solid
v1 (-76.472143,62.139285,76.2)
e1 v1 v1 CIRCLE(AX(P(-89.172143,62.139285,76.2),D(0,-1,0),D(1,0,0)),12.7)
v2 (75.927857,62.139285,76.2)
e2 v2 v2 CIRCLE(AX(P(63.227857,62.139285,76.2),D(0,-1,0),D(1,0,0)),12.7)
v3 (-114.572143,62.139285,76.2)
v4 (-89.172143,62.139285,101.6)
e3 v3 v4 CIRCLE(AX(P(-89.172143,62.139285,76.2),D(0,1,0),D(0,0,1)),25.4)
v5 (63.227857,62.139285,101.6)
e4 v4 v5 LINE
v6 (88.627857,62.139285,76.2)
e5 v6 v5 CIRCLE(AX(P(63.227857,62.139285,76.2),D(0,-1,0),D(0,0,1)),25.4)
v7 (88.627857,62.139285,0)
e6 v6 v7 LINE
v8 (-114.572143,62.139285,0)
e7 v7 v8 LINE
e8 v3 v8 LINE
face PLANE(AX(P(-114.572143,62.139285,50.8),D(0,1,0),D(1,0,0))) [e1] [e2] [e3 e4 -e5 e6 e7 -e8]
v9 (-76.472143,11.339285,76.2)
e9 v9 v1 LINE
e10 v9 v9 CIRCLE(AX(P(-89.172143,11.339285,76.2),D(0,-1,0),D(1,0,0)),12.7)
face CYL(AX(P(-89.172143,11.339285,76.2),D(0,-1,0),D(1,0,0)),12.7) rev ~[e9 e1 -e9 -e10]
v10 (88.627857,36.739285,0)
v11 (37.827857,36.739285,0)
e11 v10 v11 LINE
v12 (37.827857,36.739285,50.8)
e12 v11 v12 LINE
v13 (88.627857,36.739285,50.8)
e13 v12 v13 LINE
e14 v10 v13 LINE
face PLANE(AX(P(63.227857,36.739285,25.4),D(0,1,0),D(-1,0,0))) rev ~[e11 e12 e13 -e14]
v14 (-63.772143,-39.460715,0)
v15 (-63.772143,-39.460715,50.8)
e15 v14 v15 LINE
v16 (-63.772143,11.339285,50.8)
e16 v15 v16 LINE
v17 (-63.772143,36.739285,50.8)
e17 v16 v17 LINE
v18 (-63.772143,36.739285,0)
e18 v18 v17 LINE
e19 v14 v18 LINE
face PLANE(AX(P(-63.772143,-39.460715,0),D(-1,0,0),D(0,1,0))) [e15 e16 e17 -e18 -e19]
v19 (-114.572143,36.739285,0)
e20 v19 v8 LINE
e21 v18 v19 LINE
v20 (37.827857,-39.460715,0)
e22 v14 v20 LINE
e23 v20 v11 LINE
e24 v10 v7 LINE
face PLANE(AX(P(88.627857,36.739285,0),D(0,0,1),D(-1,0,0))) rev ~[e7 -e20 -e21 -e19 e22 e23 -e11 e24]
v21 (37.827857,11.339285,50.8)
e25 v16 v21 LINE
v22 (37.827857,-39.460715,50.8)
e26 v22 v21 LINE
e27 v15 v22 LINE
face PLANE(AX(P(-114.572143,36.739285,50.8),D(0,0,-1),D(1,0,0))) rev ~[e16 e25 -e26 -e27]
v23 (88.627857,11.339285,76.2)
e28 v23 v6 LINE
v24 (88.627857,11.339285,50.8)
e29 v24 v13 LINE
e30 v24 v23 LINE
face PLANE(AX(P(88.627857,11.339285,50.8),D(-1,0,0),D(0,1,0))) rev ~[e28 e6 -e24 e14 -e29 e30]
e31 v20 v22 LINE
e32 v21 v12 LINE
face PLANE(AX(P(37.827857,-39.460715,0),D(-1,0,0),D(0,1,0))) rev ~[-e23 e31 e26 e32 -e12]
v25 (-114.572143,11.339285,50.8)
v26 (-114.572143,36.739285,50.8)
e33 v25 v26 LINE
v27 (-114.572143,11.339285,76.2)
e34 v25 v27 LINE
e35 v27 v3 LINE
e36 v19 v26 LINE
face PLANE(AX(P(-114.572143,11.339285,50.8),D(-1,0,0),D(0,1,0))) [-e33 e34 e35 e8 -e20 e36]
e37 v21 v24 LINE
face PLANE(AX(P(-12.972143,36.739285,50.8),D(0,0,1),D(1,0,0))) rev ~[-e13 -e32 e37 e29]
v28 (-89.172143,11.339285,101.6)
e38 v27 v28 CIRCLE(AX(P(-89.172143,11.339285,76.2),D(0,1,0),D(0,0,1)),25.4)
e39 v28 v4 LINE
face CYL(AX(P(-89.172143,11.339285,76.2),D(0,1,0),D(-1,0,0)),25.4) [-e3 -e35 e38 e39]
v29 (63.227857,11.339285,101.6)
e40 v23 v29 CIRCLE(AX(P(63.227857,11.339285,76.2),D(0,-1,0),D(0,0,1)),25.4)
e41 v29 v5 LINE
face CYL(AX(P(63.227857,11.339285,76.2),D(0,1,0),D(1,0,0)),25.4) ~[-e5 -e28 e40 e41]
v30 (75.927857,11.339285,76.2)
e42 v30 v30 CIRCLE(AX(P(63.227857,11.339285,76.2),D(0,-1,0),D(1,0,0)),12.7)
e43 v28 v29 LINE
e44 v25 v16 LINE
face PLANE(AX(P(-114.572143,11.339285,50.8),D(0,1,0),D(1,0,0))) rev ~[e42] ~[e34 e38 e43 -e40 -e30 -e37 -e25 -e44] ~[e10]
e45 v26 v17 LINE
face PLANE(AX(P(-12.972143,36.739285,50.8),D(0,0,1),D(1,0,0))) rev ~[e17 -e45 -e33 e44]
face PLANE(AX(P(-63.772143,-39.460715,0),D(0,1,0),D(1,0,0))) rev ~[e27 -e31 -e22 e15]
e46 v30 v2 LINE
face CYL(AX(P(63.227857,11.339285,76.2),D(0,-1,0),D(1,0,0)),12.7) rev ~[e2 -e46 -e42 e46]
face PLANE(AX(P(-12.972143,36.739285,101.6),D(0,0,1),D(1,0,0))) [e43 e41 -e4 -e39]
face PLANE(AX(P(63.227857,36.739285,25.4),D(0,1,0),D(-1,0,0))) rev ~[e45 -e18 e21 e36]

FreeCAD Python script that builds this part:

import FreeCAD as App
import Part
import Sketcher
Q = App.Units.Quantity


def edges_at(feature, points):
    """Names of the edges that pass closest to the given points."""
    edges = feature.Shape.Edges
    near = lambda p: min(range(len(edges)), key=lambda i: edges[i].distToShape(Part.Vertex(*p))[0])
    return sorted({f"Edge{near(p) + 1}" for p in points})


def add_polygon(sketch, points):
    """Adds a closed chain of lines whose ends are joined by coincident constraints."""
    first, n = sketch.GeometryCount, len(points)
    for a, b in zip(points, points[1:] + points[:1]):
        sketch.addGeometry(Part.LineSegment(App.Vector(*a, 0), App.Vector(*b, 0)), False)
    for i in range(n):
        sketch.addConstraint(Sketcher.Constraint("Coincident", first + i, 2, first + (i + 1) % n, 1))

doc = App.newDocument("Part")
body = doc.addObject("PartDesign::Body", "Body")

# Sketch on XY plane
sketch1 = body.newObject("Sketcher::SketchObject", "Sketch")
sketch1.AttachmentSupport = (doc.getObject("XY_Plane"), [""])
sketch1.MapMode = "FlatFace"
add_polygon(sketch1, [(-64, 37), (-64, -39), (38, -39), (38, 37)])  # lines 0-3
sketch1.addConstraint([
    Sketcher.Constraint("Vertical", 0),
    Sketcher.Constraint("Horizontal", 1),
    Sketcher.Constraint("Vertical", 2),
    Sketcher.Constraint("Horizontal", 3),
    Sketcher.Constraint("DistanceX", 1, 1, 1, 2, Q("4 in")),
    Sketcher.Constraint("DistanceY", 0, 2, 0, 1, Q("3 in")),
    Sketcher.Constraint("DistanceX", 0, 2, -1, 1, Q("63.772143 mm")),
    Sketcher.Constraint("DistanceY", 0, 2, -1, 1, Q("39.460715 mm")),
])
pad1 = body.newObject("PartDesign::Pad", "Pad")
pad1.Profile = sketch1
pad1.Length = Q("2 in")

# Sketch on XZ plane
sketch2 = body.newObject("Sketcher::SketchObject", "Sketch001")
sketch2.AttachmentSupport = (doc.getObject("XZ_Plane"), [""])
sketch2.MapMode = "FlatFace"
sketch2.AttachmentOffset = App.Placement(App.Vector(0, 0, -36.739285), App.Rotation())
add_polygon(sketch2, [(89, 51), (89, 0), (-115, 0), (-115, 51)])  # lines 0-3
sketch2.addConstraint([
    Sketcher.Constraint("Vertical", 0),
    Sketcher.Constraint("Horizontal", 1),
    Sketcher.Constraint("Vertical", 2),
    Sketcher.Constraint("Horizontal", 3),
    Sketcher.Constraint("PointOnObject", 0, 2, -1),
    Sketcher.Constraint("DistanceX", 1, 2, 1, 1, Q("8 in")),
    Sketcher.Constraint("DistanceY", 0, 2, 0, 1, Q("2 in")),
    Sketcher.Constraint("DistanceX", -1, 1, 0, 2, Q("88.627857 mm")),
])
pad2 = body.newObject("PartDesign::Pad", "Pad001")
pad2.Profile = sketch2
pad2.Length = Q("1 in")
pad2.Reversed = True

# Sketch on XY plane
sketch3 = body.newObject("Sketcher::SketchObject", "Sketch002")
sketch3.AttachmentSupport = (doc.getObject("XY_Plane"), [""])
sketch3.MapMode = "FlatFace"
sketch3.AttachmentOffset = App.Placement(App.Vector(0, 0, 2 * 25.4), App.Rotation())
add_polygon(sketch3, [(-115, 62), (-115, 11), (89, 11), (89, 62)])  # lines 0-3
sketch3.addConstraint([
    Sketcher.Constraint("Vertical", 0),
    Sketcher.Constraint("Horizontal", 1),
    Sketcher.Constraint("Vertical", 2),
    Sketcher.Constraint("Horizontal", 3),
    Sketcher.Constraint("DistanceX", 1, 1, 1, 2, Q("8 in")),
    Sketcher.Constraint("DistanceY", 0, 2, 0, 1, Q("2 in")),
    Sketcher.Constraint("DistanceX", 0, 2, -1, 1, Q("114.572143 mm")),
    Sketcher.Constraint("DistanceY", -1, 1, 0, 2, Q("11.339285 mm")),
])
pad3 = body.newObject("PartDesign::Pad", "Pad002")
pad3.Profile = sketch3
pad3.Length = Q("2 in")
doc.recompute()

fillet = body.newObject("PartDesign::Fillet", "Fillet")
fillet.Base = (pad3, edges_at(pad3, [(88.628, 36.739, 101.6), (-114.572, 36.739, 101.6)]))
fillet.Radius = Q("1 in")

# Sketch on XZ plane
sketch4 = body.newObject("Sketcher::SketchObject", "Sketch003")
sketch4.AttachmentSupport = (doc.getObject("XZ_Plane"), [""])
sketch4.MapMode = "FlatFace"
sketch4.AttachmentOffset = App.Placement(App.Vector(0, 0, -11.339285), App.Rotation())
sketch4.addGeometry(Part.Circle(App.Vector(63, 76, 0), App.Vector(0, 0, 1), 13), False)
sketch4.addConstraint([
    Sketcher.Constraint("Diameter", 0, Q("1 in")),
    Sketcher.Constraint("DistanceY", -1, 1, 0, 3, Q("3 in")),
    Sketcher.Constraint("DistanceX", -1, 1, 0, 3, Q("63.227857 mm")),
])
pocket1 = body.newObject("PartDesign::Pocket", "Pocket")
pocket1.Profile = sketch4
pocket1.Length = Q("2.09 in")

# Sketch on XZ plane
sketch5 = body.newObject("Sketcher::SketchObject", "Sketch004")
sketch5.AttachmentSupport = (doc.getObject("XZ_Plane"), [""])
sketch5.MapMode = "FlatFace"
sketch5.AttachmentOffset = App.Placement(App.Vector(0, 0, -11.339285), App.Rotation())
sketch5.addGeometry(Part.Circle(App.Vector(-89, 76, 0), App.Vector(0, 0, 1), 13), False)
sketch5.addConstraint([
    Sketcher.Constraint("Diameter", 0, Q("1 in")),
    Sketcher.Constraint("DistanceY", -1, 1, 0, 3, Q("3 in")),
    Sketcher.Constraint("DistanceX", 0, 3, -1, 1, Q("89.172143 mm")),
])
pocket2 = body.newObject("PartDesign::Pocket", "Pocket001")
pocket2.Profile = sketch5
pocket2.Length = Q("2.4 in")

doc.recompute()
